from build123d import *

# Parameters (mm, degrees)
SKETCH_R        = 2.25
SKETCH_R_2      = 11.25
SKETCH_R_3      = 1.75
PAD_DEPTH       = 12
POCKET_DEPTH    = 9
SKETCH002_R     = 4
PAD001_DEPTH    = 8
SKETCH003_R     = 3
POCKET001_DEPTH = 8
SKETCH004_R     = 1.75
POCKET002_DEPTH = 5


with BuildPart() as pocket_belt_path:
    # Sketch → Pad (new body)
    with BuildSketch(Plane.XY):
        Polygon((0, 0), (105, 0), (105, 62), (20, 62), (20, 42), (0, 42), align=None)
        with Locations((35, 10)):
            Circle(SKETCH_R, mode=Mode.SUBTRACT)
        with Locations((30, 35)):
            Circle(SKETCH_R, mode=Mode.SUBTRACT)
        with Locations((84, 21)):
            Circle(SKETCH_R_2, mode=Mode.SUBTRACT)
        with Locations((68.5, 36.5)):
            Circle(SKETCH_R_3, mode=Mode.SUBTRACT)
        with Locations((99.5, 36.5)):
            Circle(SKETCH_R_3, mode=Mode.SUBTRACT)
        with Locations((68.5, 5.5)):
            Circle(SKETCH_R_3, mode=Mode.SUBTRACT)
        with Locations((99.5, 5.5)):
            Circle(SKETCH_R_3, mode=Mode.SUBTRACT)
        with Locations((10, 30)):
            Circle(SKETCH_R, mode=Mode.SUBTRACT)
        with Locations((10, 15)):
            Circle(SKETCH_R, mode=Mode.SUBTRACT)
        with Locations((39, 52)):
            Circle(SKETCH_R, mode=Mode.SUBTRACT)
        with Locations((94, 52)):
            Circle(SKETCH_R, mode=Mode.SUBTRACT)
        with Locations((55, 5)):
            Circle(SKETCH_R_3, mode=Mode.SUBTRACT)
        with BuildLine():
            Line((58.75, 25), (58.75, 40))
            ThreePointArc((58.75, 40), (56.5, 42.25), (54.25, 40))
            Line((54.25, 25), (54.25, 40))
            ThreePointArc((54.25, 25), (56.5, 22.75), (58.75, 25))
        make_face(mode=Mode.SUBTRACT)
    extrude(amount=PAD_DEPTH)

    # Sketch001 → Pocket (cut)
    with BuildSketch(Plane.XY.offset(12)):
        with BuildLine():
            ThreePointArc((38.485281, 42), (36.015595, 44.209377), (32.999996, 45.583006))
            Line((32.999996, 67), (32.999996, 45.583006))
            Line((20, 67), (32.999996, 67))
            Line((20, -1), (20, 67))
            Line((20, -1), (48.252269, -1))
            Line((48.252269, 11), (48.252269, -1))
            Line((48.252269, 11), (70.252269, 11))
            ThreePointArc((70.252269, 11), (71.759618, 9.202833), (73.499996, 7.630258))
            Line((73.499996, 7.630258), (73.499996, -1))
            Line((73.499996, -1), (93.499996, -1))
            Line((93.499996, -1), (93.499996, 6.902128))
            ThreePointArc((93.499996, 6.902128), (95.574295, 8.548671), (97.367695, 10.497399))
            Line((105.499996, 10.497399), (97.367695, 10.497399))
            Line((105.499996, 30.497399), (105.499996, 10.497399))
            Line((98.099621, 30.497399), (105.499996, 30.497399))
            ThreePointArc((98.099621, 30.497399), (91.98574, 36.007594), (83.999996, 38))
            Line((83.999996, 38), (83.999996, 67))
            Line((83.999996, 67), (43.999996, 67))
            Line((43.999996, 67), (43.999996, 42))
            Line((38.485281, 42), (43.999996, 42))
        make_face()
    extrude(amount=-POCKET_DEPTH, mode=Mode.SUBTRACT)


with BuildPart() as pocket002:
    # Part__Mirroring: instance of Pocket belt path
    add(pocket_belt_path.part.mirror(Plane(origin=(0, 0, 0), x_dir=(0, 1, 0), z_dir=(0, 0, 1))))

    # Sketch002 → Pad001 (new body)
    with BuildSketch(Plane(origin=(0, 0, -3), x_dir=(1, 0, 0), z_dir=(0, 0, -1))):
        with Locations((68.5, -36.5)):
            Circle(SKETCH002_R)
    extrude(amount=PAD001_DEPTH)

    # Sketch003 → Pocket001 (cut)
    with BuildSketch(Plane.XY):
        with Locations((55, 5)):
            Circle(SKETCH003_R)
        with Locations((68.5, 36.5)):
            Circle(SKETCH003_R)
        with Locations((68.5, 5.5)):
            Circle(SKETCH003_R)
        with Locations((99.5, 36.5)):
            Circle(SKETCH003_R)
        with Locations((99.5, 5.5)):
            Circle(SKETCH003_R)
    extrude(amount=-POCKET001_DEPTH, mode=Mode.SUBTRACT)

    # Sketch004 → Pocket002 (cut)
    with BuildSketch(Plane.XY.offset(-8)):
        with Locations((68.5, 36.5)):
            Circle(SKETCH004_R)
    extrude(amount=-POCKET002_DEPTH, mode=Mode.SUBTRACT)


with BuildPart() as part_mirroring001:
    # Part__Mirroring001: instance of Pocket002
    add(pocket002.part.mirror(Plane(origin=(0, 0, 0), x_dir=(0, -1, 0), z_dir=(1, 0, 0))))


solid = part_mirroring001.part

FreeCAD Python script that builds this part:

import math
import FreeCAD as App
import Part
import Sketcher

V = App.Vector
Q = App.Units.Quantity


def add_polygon(sketch, points):
    """Adds a closed chain of lines whose ends are joined by coincident constraints."""
    first, n = sketch.GeometryCount, len(points)
    for a, b in zip(points, points[1:] + points[:1]):
        sketch.addGeometry(Part.LineSegment(App.Vector(*a, 0), App.Vector(*b, 0)), False)
    for i in range(n):
        sketch.addConstraint(Sketcher.Constraint("Coincident", first + i, 2, first + (i + 1) % n, 1))

doc = App.newDocument("Part")
body = doc.addObject("PartDesign::Body", "Body")

sketch1 = body.newObject("Sketcher::SketchObject", "Sketch")
sketch1.AttachmentSupport = (doc.getObject("XY_Plane"), [""])
sketch1.MapMode = "FlatFace"
add_polygon(sketch1, [(0, 0), (105, 0), (105, 62), (20, 62), (20, 42), (0, 42)])
sketch1.addGeometry(Part.Circle(V(10, 15, 0), V(0, 0, 1), 2.25), False)
sketch1.addGeometry(Part.Circle(V(35, 10, 0), V(0, 0, 1), 2.25), False)
sketch1.addGeometry(Part.Circle(V(55, 5, 0), V(0, 0, 1), 1.75), False)
sketch1.addGeometry(Part.Circle(V(68.5, 5.5, 0), V(0, 0, 1), 1.75), False)
sketch1.addGeometry(Part.Circle(V(99.5, 5.5, 0), V(0, 0, 1), 1.75), False)
sketch1.addGeometry(Part.Circle(V(84, 21, 0), V(0, 0, 1), 11.25), False)
sketch1.addGeometry(Part.Circle(V(10, 30, 0), V(0, 0, 1), 2.25), False)
sketch1.addGeometry(Part.Circle(V(30, 35, 0), V(0, 0, 1), 2.25), False)
sketch1.addGeometry(Part.Circle(V(39, 52, 0), V(0, 0, 1), 2.25), False)
sketch1.addGeometry(Part.LineSegment(V(58.75, 40, 0), V(58.75, 25, 0)), False)
sketch1.addGeometry(Part.ArcOfCircle(Part.Circle(V(56.5, 25, 0), V(0, 0, 1), 2.25), math.radians(180), math.radians(360)), False)
sketch1.addGeometry(Part.LineSegment(V(54.25, 25, 0), V(54.25, 40, 0)), False)
sketch1.addGeometry(Part.ArcOfCircle(Part.Circle(V(56.5, 40, 0), V(0, 0, 1), 2.25), math.radians(0), math.radians(180)), False)
sketch1.addGeometry(Part.Circle(V(68.5, 36.5, 0), V(0, 0, 1), 1.75), False)
sketch1.addGeometry(Part.Circle(V(99.5, 36.5, 0), V(0, 0, 1), 1.75), False)
sketch1.addGeometry(Part.Circle(V(94, 52, 0), V(0, 0, 1), 2.25), False)
sketch1.addConstraint(Sketcher.Constraint("Tangent", 15, 2, 16, 2))
sketch1.addConstraint(Sketcher.Constraint("Tangent", 16, 1, 17, 1))
sketch1.addConstraint(Sketcher.Constraint("Tangent", 17, 2, 18, 2))
sketch1.addConstraint(Sketcher.Constraint("Tangent", 18, 1, 15, 1))
sketch1.addConstraint(Sketcher.Constraint("Horizontal", 0))
sketch1.addConstraint(Sketcher.Constraint("Vertical", 1))
sketch1.addConstraint(Sketcher.Constraint("Horizontal", 2))
sketch1.addConstraint(Sketcher.Constraint("Vertical", 3))
sketch1.addConstraint(Sketcher.Constraint("Horizontal", 4))
sketch1.addConstraint(Sketcher.Constraint("Vertical", 5))
sketch1.addConstraint(Sketcher.Constraint("Vertical", 15))
sketch1.addConstraint(Sketcher.Constraint("Vertical", 17))
sketch1.addConstraint(Sketcher.Constraint("Coincident", 5, 2, -1, 1))
sketch1.addConstraint(Sketcher.Constraint("Equal", 6, 7))
sketch1.addConstraint(Sketcher.Constraint("Equal", 8, 9))
sketch1.addConstraint(Sketcher.Constraint("Equal", 9, 10))
sketch1.addConstraint(Sketcher.Constraint("Equal", 7, 12))
sketch1.addConstraint(Sketcher.Constraint("Equal", 12, 13))
sketch1.addConstraint(Sketcher.Constraint("Equal", 13, 14))
sketch1.addConstraint(Sketcher.Constraint("Equal", 14, 16))
sketch1.addConstraint(Sketcher.Constraint("Equal", 10, 19))
sketch1.addConstraint(Sketcher.Constraint("Equal", 19, 20))
sketch1.addConstraint(Sketcher.Constraint("Equal", 18, 21))
sketch1.addConstraint(Sketcher.Constraint("Horizontal", 9, 3, 10, 3))
sketch1.addConstraint(Sketcher.Constraint("Horizontal", 19, 3, 20, 3))
sketch1.addConstraint(Sketcher.Constraint("Horizontal", 14, 3, 21, 3))
sketch1.addConstraint(Sketcher.Constraint("Vertical", 6, 3, 12, 3))
sketch1.addConstraint(Sketcher.Constraint("Vertical", 9, 3, 19, 3))
sketch1.addConstraint(Sketcher.Constraint("Vertical", 10, 3, 20, 3))
sketch1.addConstraint(Sketcher.Constraint("Equal", 4, 3))
sketch1.addConstraint(Sketcher.Constraint("Diameter", 6, Q("4.5 mm")))
sketch1.addConstraint(Sketcher.Constraint("Diameter", 8, Q("3.5 mm")))
sketch1.addConstraint(Sketcher.Constraint("Diameter", 11, Q("22.5 mm")))
sketch1.addConstraint(Sketcher.Constraint("DistanceX", 0, 1, 0, 2, Q("105 mm")))
sketch1.addConstraint(Sketcher.Constraint("DistanceX", 2, 2, 2, 1, Q("85 mm")))
sketch1.addConstraint(Sketcher.Constraint("DistanceY", 1, 1, 1, 2, Q("62 mm")))
sketch1.addConstraint(Sketcher.Constraint("DistanceY", 15, 2, 15, 1, Q("15 mm")))
sketch1.addConstraint(Sketcher.Constraint("DistanceX", -1, 1, 6, 3, Q("10 mm")))
sketch1.addConstraint(Sketcher.Constraint("DistanceY", -1, 1, 6, 3, Q("15 mm")))
sketch1.addConstraint(Sketcher.Constraint("DistanceX", -1, 1, 7, 3, Q("35 mm")))
sketch1.addConstraint(Sketcher.Constraint("DistanceY", -1, 1, 7, 3, Q("10 mm")))
sketch1.addConstraint(Sketcher.Constraint("DistanceX", -1, 1, 8, 3, Q("55 mm")))
sketch1.addConstraint(Sketcher.Constraint("DistanceY", -1, 1, 8, 3, Q("5 mm")))
sketch1.addConstraint(Sketcher.Constraint("DistanceX", -1, 1, 11, 3, Q("84 mm")))
sketch1.addConstraint(Sketcher.Constraint("DistanceY", -1, 1, 11, 3, Q("21 mm")))
sketch1.addConstraint(Sketcher.Constraint("DistanceY", -1, 1, 12, 3, Q("30 mm")))
sketch1.addConstraint(Sketcher.Constraint("DistanceX", -1, 1, 13, 3, Q("30 mm")))
sketch1.addConstraint(Sketcher.Constraint("DistanceY", -1, 1, 13, 3, Q("35 mm")))
sketch1.addConstraint(Sketcher.Constraint("DistanceX", -1, 1, 14, 3, Q("39 mm")))
sketch1.addConstraint(Sketcher.Constraint("DistanceY", -1, 1, 14, 3, Q("52 mm")))
sketch1.addConstraint(Sketcher.Constraint("DistanceY", -1, 1, 16, 3, Q("25 mm")))
sketch1.addConstraint(Sketcher.Constraint("DistanceX", -1, 1, 21, 3, Q("94 mm")))
sketch1.addConstraint(Sketcher.Constraint("DistanceX", 9, 3, 10, 3, Q("31 mm")))
sketch1.addConstraint(Sketcher.Constraint("DistanceX", 16, 3, 9, 3, Q("12 mm")))
sketch1.addConstraint(Sketcher.Constraint("DistanceY", 9, 3, 19, 3, Q("31 mm")))
sketch1.addConstraint(Sketcher.Constraint("DistanceX", -1, 1, 9, 3, Q("68.5 mm")))
sketch1.addConstraint(Sketcher.Constraint("DistanceY", -1, 1, 9, 3, Q("5.5 mm")))
pad1 = body.newObject("PartDesign::Pad", "Pad")
pad1.Profile = sketch1
pad1.Length = 12

sketch2 = body.newObject("Sketcher::SketchObject", "Sketch001")
sketch2.AttachmentSupport = (doc.getObject("XY_Plane"), [""])
sketch2.MapMode = "FlatFace"
sketch2.AttachmentOffset = App.Placement(V(0, 0, 12), App.Rotation())
sketch2.addGeometry(Part.ArcOfCircle(Part.Circle(V(30.000008, 35.000013, 0), V(0, 0, 1), 10.999985), math.radians(39.521175), math.radians(74.173425)), False)
sketch2.addGeometry(Part.LineSegment(V(32.999996, 45.583006, 0), V(32.999996, 67, 0)), False)
sketch2.addGeometry(Part.LineSegment(V(32.999996, 67, 0), V(20, 67, 0)), False)
sketch2.addGeometry(Part.LineSegment(V(20, 67, 0), V(20, -1, 0)), False)
sketch2.addGeometry(Part.LineSegment(V(20, -1, 0), V(48.252269, -1, 0)), False)
sketch2.addGeometry(Part.LineSegment(V(48.252269, -1, 0), V(48.252269, 11, 0)), False)
sketch2.addGeometry(Part.LineSegment(V(48.252269, 11, 0), V(70.252269, 11, 0)), False)
sketch2.addGeometry(Part.ArcOfCircle(Part.Circle(V(83.999989, 20.999992, 0), V(0, 0, 1), 16.99999), math.radians(-143.968127), math.radians(-128.144509)), False)
sketch2.addGeometry(Part.LineSegment(V(73.499996, 7.630258, 0), V(73.499996, -1, 0)), False)
sketch2.addGeometry(Part.LineSegment(V(73.499996, -1, 0), V(93.499996, -1, 0)), False)
sketch2.addGeometry(Part.LineSegment(V(93.499996, -1, 0), V(93.499996, 6.902128, 0)), False)
sketch2.addGeometry(Part.ArcOfCircle(Part.Circle(V(83.999983, 21.000016, 0), V(0, 0, 1), 17.00002), math.radians(-56.025516), math.radians(-38.155674)), False)
sketch2.addGeometry(Part.LineSegment(V(97.367695, 10.497399, 0), V(105.499996, 10.497399, 0)), False)
sketch2.addGeometry(Part.LineSegment(V(105.499996, 10.497399, 0), V(105.499996, 30.497399, 0)), False)
sketch2.addGeometry(Part.LineSegment(V(105.499996, 30.497399, 0), V(98.099621, 30.497399, 0)), False)
sketch2.addGeometry(Part.ArcOfCircle(Part.Circle(V(83.999994, 20.999995, 0), V(0, 0, 1), 17.000005), math.radians(33.963915), math.radians(89.999993)), False)
sketch2.addGeometry(Part.LineSegment(V(83.999996, 38, 0), V(83.999996, 67, 0)), False)
sketch2.addGeometry(Part.LineSegment(V(83.999996, 67, 0), V(43.999996, 67, 0)), False)
sketch2.addGeometry(Part.LineSegment(V(43.999996, 67, 0), V(43.999996, 42, 0)), False)
sketch2.addGeometry(Part.LineSegment(V(43.999996, 42, 0), V(38.485281, 42, 0)), False)
sketch2.addConstraint(Sketcher.Constraint("Coincident", 0, 2, 1, 1))
sketch2.addConstraint(Sketcher.Constraint("Coincident", 1, 2, 2, 1))
sketch2.addConstraint(Sketcher.Constraint("Coincident", 2, 2, 3, 1))
sketch2.addConstraint(Sketcher.Constraint("Coincident", 3, 2, 4, 1))
sketch2.addConstraint(Sketcher.Constraint("Coincident", 4, 2, 5, 1))
sketch2.addConstraint(Sketcher.Constraint("Coincident", 5, 2, 6, 1))
sketch2.addConstraint(Sketcher.Constraint("Coincident", 6, 2, 7, 1))
sketch2.addConstraint(Sketcher.Constraint("Coincident", 7, 2, 8, 1))
sketch2.addConstraint(Sketcher.Constraint("Coincident", 8, 2, 9, 1))
sketch2.addConstraint(Sketcher.Constraint("Coincident", 9, 2, 10, 1))
sketch2.addConstraint(Sketcher.Constraint("Coincident", 10, 2, 11, 1))
sketch2.addConstraint(Sketcher.Constraint("Coincident", 11, 2, 12, 1))
sketch2.addConstraint(Sketcher.Constraint("Coincident", 12, 2, 13, 1))
sketch2.addConstraint(Sketcher.Constraint("Coincident", 13, 2, 14, 1))
sketch2.addConstraint(Sketcher.Constraint("Coincident", 14, 2, 15, 1))
sketch2.addConstraint(Sketcher.Constraint("Coincident", 15, 2, 16, 1))
sketch2.addConstraint(Sketcher.Constraint("Coincident", 16, 2, 17, 1))
sketch2.addConstraint(Sketcher.Constraint("Coincident", 17, 2, 18, 1))
sketch2.addConstraint(Sketcher.Constraint("Coincident", 18, 2, 19, 1))
sketch2.addConstraint(Sketcher.Constraint("Coincident", 19, 2, 0, 1))
sketch2.addConstraint(Sketcher.Constraint("Vertical", 1))
sketch2.addConstraint(Sketcher.Constraint("Horizontal", 2))
sketch2.addConstraint(Sketcher.Constraint("Vertical", 3))
sketch2.addConstraint(Sketcher.Constraint("Horizontal", 4))
sketch2.addConstraint(Sketcher.Constraint("Vertical", 5))
sketch2.addConstraint(Sketcher.Constraint("Horizontal", 6))
sketch2.addConstraint(Sketcher.Constraint("Vertical", 8))
sketch2.addConstraint(Sketcher.Constraint("Horizontal", 9))
sketch2.addConstraint(Sketcher.Constraint("Vertical", 10))
sketch2.addConstraint(Sketcher.Constraint("Horizontal", 12))
sketch2.addConstraint(Sketcher.Constraint("Vertical", 13))
sketch2.addConstraint(Sketcher.Constraint("Horizontal", 14))
sketch2.addConstraint(Sketcher.Constraint("Vertical", 16))
sketch2.addConstraint(Sketcher.Constraint("Horizontal", 17))
sketch2.addConstraint(Sketcher.Constraint("Vertical", 18))
sketch2.addConstraint(Sketcher.Constraint("Horizontal", 19))
sketch2.addConstraint(Sketcher.Constraint("Coincident", 15, 3, 7, 3))
sketch2.addConstraint(Sketcher.Constraint("Horizontal", 4, 2, 8, 2))
sketch2.addConstraint(Sketcher.Constraint("Horizontal", 2, 2, 16, 2))
sketch2.addConstraint(Sketcher.Constraint("Equal", 9, 13))
sketch2.addConstraint(Sketcher.Constraint("DistanceX", 6, 1, 6, 2, Q("22 mm")))
sketch2.addConstraint(Sketcher.Constraint("DistanceX", 9, 1, 9, 2, Q("20 mm")))
sketch2.addConstraint(Sketcher.Constraint("DistanceX", 17, 2, 17, 1, Q("40 mm")))
sketch2.addConstraint(Sketcher.Constraint("DistanceY", 3, 2, 3, 1, Q("68 mm")))
sketch2.addConstraint(Sketcher.Constraint("DistanceY", 5, 1, 5, 2, Q("12 mm")))
sketch2.addConstraint(Sketcher.Constraint("DistanceY", 16, 1, 16, 2, Q("29 mm")))
sketch2.addConstraint(Sketcher.Constraint("DistanceY", 18, 2, 18, 1, Q("25 mm")))
sketch2.addConstraint(Sketcher.Constraint("DistanceY", -1, 1, 1, 2, Q("67 mm")))
sketch2.addConstraint(Sketcher.Constraint("DistanceX", -1, 1, 2, 2, Q("20 mm")))
sketch2.addConstraint(Sketcher.Constraint("DistanceX", 10, 2, 12, 2, Q("12 mm")))
sketch2.addConstraint(Sketcher.Constraint("DistanceX", 1, 2, 17, 2, Q("11 mm")))
sketch2.addConstraint(Sketcher.Constraint("DistanceX", 15, 2, 13, 2, Q("21.5 mm")))
sketch2.addConstraint(Sketcher.Constraint("Radius", 7, Q("16.99999 mm")))
sketch2.addConstraint(Sketcher.Constraint("Radius", 11, Q("17.00002 mm")))
sketch2.addConstraint(Sketcher.Constraint("DistanceX", 12, 1, 12, 2, Q("8.132301 mm")))
sketch2.addConstraint(Sketcher.Constraint("Radius", 0, Q("10.999985 mm")))
sketch2.addConstraint(Sketcher.Constraint("Radius", 15, Q("17.000005 mm")))
sketch2.addConstraint(Sketcher.Constraint("DistanceX", 4, 1, 4, 2, Q("28.252269 mm")))
sketch2.addConstraint(Sketcher.Constraint("DistanceY", 8, 2, 8, 1, Q("8.630258 mm")))
sketch2.addConstraint(Sketcher.Constraint("DistanceY", 10, 1, 10, 2, Q("7.902128 mm")))
sketch2.addConstraint(Sketcher.Constraint("DistanceY", -1, 1, 11, 2, Q("10.497399 mm")))
sketch2.addConstraint(Sketcher.Constraint("DistanceX", 19, 2, 19, 1, Q("5.514715 mm")))
sketch2.addConstraint(Sketcher.Constraint("DistanceY", 1, 1, 1, 2, Q("21.416994 mm")))
pocket1 = body.newObject("PartDesign::Pocket", "Pocket")
pocket1.Profile = sketch2
pocket1.Length = 9
body2 = doc.addObject("PartDesign::Body", "Body001")
doc.recompute()

mirroring = doc.addObject("Part::Mirroring", "Mirroring")
mirroring.Source = body
mirroring.Base = V(0, 0, 0)
mirroring.Normal = V(0, 0, 1)
body2.BaseFeature = mirroring
doc.recompute()

sketch3 = body2.newObject("Sketcher::SketchObject", "Sketch002")
sketch3.AttachmentSupport = (doc.getObject("XY_Plane001"), [""])
sketch3.MapMode = "FlatFace"
sketch3.AttachmentOffset = App.Placement(V(0, 0, -3), App.Rotation())
sketch3.addGeometry(Part.Circle(V(68.5, 36.5, 0), V(0, 0, 1), 4), False)
sketch3.addConstraint(Sketcher.Constraint("Diameter", 0, Q("8 mm")))
sketch3.addConstraint(Sketcher.Constraint("DistanceX", -1, 1, 0, 3, Q("68.5 mm")))
sketch3.addConstraint(Sketcher.Constraint("DistanceY", -1, 1, 0, 3, Q("36.5 mm")))
pad2 = body2.newObject("PartDesign::Pad", "Pad001")
pad2.Profile = sketch3
pad2.Length = 8
pad2.Reversed = True

sketch4 = body2.newObject("Sketcher::SketchObject", "Sketch003")
sketch4.AttachmentSupport = (doc.getObject("XY_Plane001"), [""])
sketch4.MapMode = "FlatFace"
sketch4.addGeometry(Part.Circle(V(55, 5, 0), V(0, 0, 1), 3), False)
sketch4.addGeometry(Part.Circle(V(68.5, 36.5, 0), V(0, 0, 1), 3), False)
sketch4.addGeometry(Part.Circle(V(68.5, 5.5, 0), V(0, 0, 1), 3), False)
sketch4.addGeometry(Part.Circle(V(99.5, 36.5, 0), V(0, 0, 1), 3), False)
sketch4.addGeometry(Part.Circle(V(99.5, 5.5, 0), V(0, 0, 1), 3), False)
sketch4.addConstraint(Sketcher.Constraint("Equal", 0, 1))
sketch4.addConstraint(Sketcher.Constraint("Equal", 1, 2))
sketch4.addConstraint(Sketcher.Constraint("Equal", 2, 3))
sketch4.addConstraint(Sketcher.Constraint("Equal", 3, 4))
sketch4.addConstraint(Sketcher.Constraint("Horizontal", 1, 3, 3, 3))
sketch4.addConstraint(Sketcher.Constraint("Horizontal", 2, 3, 4, 3))
sketch4.addConstraint(Sketcher.Constraint("Vertical", 1, 3, 2, 3))
sketch4.addConstraint(Sketcher.Constraint("Vertical", 3, 3, 4, 3))
sketch4.addConstraint(Sketcher.Constraint("Diameter", 0, Q("6 mm")))
sketch4.addConstraint(Sketcher.Constraint("DistanceX", -1, 1, 0, 3, Q("55 mm")))
sketch4.addConstraint(Sketcher.Constraint("DistanceY", -1, 1, 0, 3, Q("5 mm")))
sketch4.addConstraint(Sketcher.Constraint("DistanceY", 2, 3, 1, 3, Q("31 mm")))
sketch4.addConstraint(Sketcher.Constraint("DistanceX", 1, 3, 3, 3, Q("31 mm")))
sketch4.addConstraint(Sketcher.Constraint("DistanceX", -1, 1, 1, 3, Q("68.5 mm")))
sketch4.addConstraint(Sketcher.Constraint("DistanceY", -1, 1, 1, 3, Q("36.5 mm")))
pocket2 = body2.newObject("PartDesign::Pocket", "Pocket001")
pocket2.Profile = sketch4
pocket2.Length = 8

sketch5 = body2.newObject("Sketcher::SketchObject", "Sketch004")
sketch5.AttachmentSupport = (doc.getObject("XY_Plane001"), [""])
sketch5.MapMode = "FlatFace"
sketch5.AttachmentOffset = App.Placement(V(0, 0, -8), App.Rotation())
sketch5.addGeometry(Part.Circle(V(68.5, 36.5, 0), V(0, 0, 1), 1.75), False)
sketch5.addConstraint(Sketcher.Constraint("Diameter", 0, Q("3.5 mm")))
sketch5.addConstraint(Sketcher.Constraint("DistanceX", -1, 1, 0, 3, Q("68.5 mm")))
sketch5.addConstraint(Sketcher.Constraint("DistanceY", -1, 1, 0, 3, Q("36.5 mm")))
pocket3 = body2.newObject("PartDesign::Pocket", "Pocket002")
pocket3.Profile = sketch5
pocket3.Length = 5
body3 = doc.addObject("PartDesign::Body", "Body002")
doc.recompute()

mirroring2 = doc.addObject("Part::Mirroring", "Mirroring001")
mirroring2.Source = body2
mirroring2.Base = V(0, 0, 0)
mirroring2.Normal = V(1, 0, 0)
body3.BaseFeature = mirroring2
doc.recompute()
body.Visibility = False
body2.Visibility = False
mirroring.Visibility = False
mirroring2.Visibility = False

doc.recompute()
